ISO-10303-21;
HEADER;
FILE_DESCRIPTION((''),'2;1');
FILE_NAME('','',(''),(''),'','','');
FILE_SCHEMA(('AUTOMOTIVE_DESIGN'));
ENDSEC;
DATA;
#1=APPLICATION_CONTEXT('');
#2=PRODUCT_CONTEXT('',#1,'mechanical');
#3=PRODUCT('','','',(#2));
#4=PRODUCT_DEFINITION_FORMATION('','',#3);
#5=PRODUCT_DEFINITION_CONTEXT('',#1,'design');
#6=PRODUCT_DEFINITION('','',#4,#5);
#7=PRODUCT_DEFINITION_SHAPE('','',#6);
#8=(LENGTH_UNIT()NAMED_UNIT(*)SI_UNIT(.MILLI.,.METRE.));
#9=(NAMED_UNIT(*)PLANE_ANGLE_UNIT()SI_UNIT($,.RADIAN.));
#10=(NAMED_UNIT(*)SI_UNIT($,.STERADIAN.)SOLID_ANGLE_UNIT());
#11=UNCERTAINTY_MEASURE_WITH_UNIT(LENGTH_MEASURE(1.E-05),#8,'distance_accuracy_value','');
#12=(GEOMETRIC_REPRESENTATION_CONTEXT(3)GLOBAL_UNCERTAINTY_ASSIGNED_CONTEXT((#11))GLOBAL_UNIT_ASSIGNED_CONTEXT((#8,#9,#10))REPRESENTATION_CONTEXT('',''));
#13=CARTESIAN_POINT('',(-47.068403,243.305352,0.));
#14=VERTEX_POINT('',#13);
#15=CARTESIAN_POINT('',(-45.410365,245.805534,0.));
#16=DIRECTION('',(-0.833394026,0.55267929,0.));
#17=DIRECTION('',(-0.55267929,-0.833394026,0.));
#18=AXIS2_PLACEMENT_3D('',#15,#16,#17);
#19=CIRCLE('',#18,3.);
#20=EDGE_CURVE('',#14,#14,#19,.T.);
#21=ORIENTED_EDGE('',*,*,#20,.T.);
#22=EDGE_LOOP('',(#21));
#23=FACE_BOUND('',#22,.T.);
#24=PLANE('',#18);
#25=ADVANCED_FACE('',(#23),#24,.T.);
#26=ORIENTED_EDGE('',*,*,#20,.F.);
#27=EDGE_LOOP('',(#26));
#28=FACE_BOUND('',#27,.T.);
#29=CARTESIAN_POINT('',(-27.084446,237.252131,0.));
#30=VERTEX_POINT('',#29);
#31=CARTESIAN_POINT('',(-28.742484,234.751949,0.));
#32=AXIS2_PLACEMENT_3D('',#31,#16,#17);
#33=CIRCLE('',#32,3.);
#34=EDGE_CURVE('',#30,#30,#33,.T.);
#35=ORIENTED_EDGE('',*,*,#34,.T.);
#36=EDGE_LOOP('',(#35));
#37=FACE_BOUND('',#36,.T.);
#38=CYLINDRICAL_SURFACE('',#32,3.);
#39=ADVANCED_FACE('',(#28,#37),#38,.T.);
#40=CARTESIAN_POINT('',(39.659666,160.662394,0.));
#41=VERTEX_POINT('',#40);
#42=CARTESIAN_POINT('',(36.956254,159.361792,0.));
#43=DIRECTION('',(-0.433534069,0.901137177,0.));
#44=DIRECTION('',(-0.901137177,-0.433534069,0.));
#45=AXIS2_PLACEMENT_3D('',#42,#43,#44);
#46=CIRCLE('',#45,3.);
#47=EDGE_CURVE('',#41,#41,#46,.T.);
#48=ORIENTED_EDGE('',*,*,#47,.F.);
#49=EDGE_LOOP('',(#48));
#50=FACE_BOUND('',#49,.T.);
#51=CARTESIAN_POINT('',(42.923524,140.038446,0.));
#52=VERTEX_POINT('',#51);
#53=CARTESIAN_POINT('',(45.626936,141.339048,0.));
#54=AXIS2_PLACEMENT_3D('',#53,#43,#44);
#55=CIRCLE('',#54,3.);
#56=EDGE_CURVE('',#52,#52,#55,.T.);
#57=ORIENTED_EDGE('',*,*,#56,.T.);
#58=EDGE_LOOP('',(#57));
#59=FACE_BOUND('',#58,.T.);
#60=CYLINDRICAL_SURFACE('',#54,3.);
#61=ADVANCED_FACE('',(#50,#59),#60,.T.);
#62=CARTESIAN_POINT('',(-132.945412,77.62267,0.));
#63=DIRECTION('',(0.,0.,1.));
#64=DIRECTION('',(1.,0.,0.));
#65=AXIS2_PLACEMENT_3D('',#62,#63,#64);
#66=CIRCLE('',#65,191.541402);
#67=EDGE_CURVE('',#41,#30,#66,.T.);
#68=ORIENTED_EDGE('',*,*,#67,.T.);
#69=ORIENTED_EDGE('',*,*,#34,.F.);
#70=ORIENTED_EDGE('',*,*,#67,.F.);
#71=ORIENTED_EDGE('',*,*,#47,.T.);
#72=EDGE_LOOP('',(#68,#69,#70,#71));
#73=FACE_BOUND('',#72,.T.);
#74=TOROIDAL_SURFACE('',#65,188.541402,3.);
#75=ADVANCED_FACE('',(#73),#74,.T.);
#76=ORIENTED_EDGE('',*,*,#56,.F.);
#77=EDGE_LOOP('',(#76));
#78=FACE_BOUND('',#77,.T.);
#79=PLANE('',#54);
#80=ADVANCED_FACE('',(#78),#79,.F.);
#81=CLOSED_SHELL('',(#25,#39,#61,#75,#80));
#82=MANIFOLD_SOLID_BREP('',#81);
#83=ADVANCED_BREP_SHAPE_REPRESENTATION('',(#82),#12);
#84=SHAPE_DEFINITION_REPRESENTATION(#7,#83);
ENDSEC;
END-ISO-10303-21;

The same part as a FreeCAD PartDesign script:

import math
import FreeCAD as App
import Part
import Sketcher

doc = App.newDocument("Part")
body = doc.addObject("PartDesign::Body", "Body")

# Sketch on an angled plane
sketch1 = body.newObject("Sketcher::SketchObject", "Sketch")
sketch1.Placement = App.Placement(App.Vector(-45.410365, 245.805534, 0), App.Rotation(App.Vector(0.55267929, 0.833394026, 0), App.Vector(0, 0, 1), App.Vector(0.833394026, -0.55267929, 0), "ZXY"))
sketch1.addGeometry(Part.Circle(App.Vector(0, 0, 0), App.Vector(0, 0, 1), 3), False)
sketch1.addConstraint(Sketcher.Constraint("Coincident", 0, 3, -1, 1))
sketch1.addConstraint(Sketcher.Constraint("Diameter", 0, 6.0))

# Sketch on XY plane
sketch2 = body.newObject("Sketcher::SketchObject", "Sketch001")
sketch2.AttachmentSupport = (doc.getObject("XY_Plane"), [""])
sketch2.MapMode = "FlatFace"
sketch2.addGeometry(Part.LineSegment(App.Vector(-45.410365, 245.805534, 0), App.Vector(-28.742484, 234.751949, 0)), False)
sketch2.addGeometry(Part.ArcOfCircle(Part.Circle(App.Vector(-132.945412, 77.62267, 0), App.Vector(0, 0, 1), 188.541402), math.radians(25.692051), math.radians(56.448982)), False)
sketch2.addGeometry(Part.LineSegment(App.Vector(36.956254, 159.361792, 0), App.Vector(45.626936, 141.339048, 0)), False)
sketch2.addConstraint(Sketcher.Constraint("Tangent", 0, 2, 1, 2))
sketch2.addConstraint(Sketcher.Constraint("Tangent", 1, 1, 2, 1))
sketch2.addConstraint(Sketcher.Constraint("Equal", 0, 2))
sketch2.addConstraint(Sketcher.Constraint("Distance", 0, 20.0))
sketch2.addConstraint(Sketcher.Constraint("Radius", 1, 188.541402))
sketch2.addConstraint(Sketcher.Constraint("DistanceY", 2, 2, 0, 2, 93.4129))
sketch2.addConstraint(Sketcher.Constraint("DistanceX", 0, 1, 2, 2, 91.0373))
sketch2.addConstraint(Sketcher.Constraint("DistanceY", -1, 1, 1, 3, 77.62267))
sketch2.addConstraint(Sketcher.Constraint("DistanceX", 1, 3, -1, 1, 132.945412))
doc.recompute()

additivepipe = body.newObject("PartDesign::AdditivePipe", "AdditivePipe")
additivepipe.Profile = sketch1
additivepipe.Spine = (sketch2, ["Edge1", "Edge2", "Edge3"])

doc.recompute()
